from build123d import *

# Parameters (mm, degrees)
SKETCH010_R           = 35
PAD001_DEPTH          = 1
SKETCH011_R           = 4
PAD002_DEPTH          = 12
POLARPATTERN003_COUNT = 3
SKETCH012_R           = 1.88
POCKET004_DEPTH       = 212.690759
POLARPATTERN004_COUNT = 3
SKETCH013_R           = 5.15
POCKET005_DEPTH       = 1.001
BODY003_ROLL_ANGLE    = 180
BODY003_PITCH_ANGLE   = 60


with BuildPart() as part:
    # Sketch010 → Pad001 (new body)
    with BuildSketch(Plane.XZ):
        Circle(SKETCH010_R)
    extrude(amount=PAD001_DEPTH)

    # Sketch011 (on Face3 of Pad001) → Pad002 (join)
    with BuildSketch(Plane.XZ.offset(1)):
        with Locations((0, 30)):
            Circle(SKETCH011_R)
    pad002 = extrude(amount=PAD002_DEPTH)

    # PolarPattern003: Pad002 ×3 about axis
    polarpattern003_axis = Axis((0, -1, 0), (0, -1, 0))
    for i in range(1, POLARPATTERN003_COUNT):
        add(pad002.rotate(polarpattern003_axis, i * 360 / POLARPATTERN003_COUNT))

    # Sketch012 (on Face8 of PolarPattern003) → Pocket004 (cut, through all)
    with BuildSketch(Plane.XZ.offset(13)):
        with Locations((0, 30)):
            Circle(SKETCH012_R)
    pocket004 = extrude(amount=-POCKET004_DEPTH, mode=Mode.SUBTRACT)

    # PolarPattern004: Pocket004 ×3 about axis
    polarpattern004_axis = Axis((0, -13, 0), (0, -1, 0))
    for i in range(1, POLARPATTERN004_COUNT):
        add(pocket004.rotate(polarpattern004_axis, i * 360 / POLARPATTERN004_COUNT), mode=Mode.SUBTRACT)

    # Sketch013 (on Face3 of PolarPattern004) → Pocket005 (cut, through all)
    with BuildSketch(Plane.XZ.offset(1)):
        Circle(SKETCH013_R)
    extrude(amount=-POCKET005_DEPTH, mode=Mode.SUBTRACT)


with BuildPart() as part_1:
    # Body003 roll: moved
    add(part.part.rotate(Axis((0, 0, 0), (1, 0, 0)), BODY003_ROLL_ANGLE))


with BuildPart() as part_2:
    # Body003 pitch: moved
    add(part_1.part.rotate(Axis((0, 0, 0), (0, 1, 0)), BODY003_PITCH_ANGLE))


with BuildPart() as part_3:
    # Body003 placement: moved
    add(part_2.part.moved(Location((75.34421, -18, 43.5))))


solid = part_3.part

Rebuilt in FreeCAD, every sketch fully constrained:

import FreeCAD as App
import Part
import Sketcher

V = App.Vector

doc = App.newDocument("Part")
body = doc.addObject("PartDesign::Body", "Body")

# Sketch on XZ plane
sketch1 = body.newObject("Sketcher::SketchObject", "Sketch")
sketch1.AttachmentSupport = (doc.getObject("XZ_Plane"), [""])
sketch1.MapMode = "FlatFace"
sketch1.addGeometry(Part.Circle(V(0, 0, 0), V(0, 0, 1), 35), False)
sketch1.addConstraint(Sketcher.Constraint("Coincident", 0, 3, -1, 1))
sketch1.addConstraint(Sketcher.Constraint("Diameter", 0, 70.0))
pad1 = body.newObject("PartDesign::Pad", "Pad")
pad1.Profile = sketch1
pad1.Length = 1

# Sketch on XZ plane
sketch2 = body.newObject("Sketcher::SketchObject", "Sketch001")
sketch2.AttachmentSupport = (doc.getObject("XZ_Plane"), [""])
sketch2.MapMode = "FlatFace"
sketch2.AttachmentOffset = App.Placement(V(0, 0, 1), App.Rotation())
sketch2.addGeometry(Part.Circle(V(0, 30, 0), V(0, 0, 1), 4), False)
sketch2.addConstraint(Sketcher.Constraint("PointOnObject", 0, 3, -2))
sketch2.addConstraint(Sketcher.Constraint("Diameter", 0, 8.0))
sketch2.addConstraint(Sketcher.Constraint("DistanceY", -1, 1, 0, 3, 30.0))
pad2 = body.newObject("PartDesign::Pad", "Pad001")
pad2.Profile = sketch2
pad2.Length = 12
doc.recompute()

polarpattern = body.newObject("PartDesign::PolarPattern", "PolarPattern")
polarpattern.Originals = [pad2]
polarpattern.Axis = (doc.getObject("Y_Axis"), [""])
polarpattern.Angle = 360
polarpattern.Occurrences = 3
body.Tip = polarpattern

# Sketch on XZ plane
sketch3 = body.newObject("Sketcher::SketchObject", "Sketch002")
sketch3.AttachmentSupport = (doc.getObject("XZ_Plane"), [""])
sketch3.MapMode = "FlatFace"
sketch3.AttachmentOffset = App.Placement(V(0, 0, 13), App.Rotation())
sketch3.addGeometry(Part.Circle(V(0, 30, 0), V(0, 0, 1), 1.88), False)
sketch3.addConstraint(Sketcher.Constraint("PointOnObject", 0, 3, -2))
sketch3.addConstraint(Sketcher.Constraint("Diameter", 0, 3.76))
sketch3.addConstraint(Sketcher.Constraint("DistanceY", -1, 1, 0, 3, 30.0))
pocket1 = body.newObject("PartDesign::Pocket", "Pocket")
pocket1.Profile = sketch3
pocket1.Type = "ThroughAll"
doc.recompute()

polarpattern2 = body.newObject("PartDesign::PolarPattern", "PolarPattern001")
polarpattern2.Originals = [pocket1]
polarpattern2.Axis = (doc.getObject("Y_Axis"), [""])
polarpattern2.Angle = 360
polarpattern2.Occurrences = 3
body.Tip = polarpattern2

# Sketch on XZ plane
sketch4 = body.newObject("Sketcher::SketchObject", "Sketch003")
sketch4.AttachmentSupport = (doc.getObject("XZ_Plane"), [""])
sketch4.MapMode = "FlatFace"
sketch4.AttachmentOffset = App.Placement(V(0, 0, 1), App.Rotation())
sketch4.addGeometry(Part.Circle(V(0, 0, 0), V(0, 0, 1), 5.15), False)
sketch4.addConstraint(Sketcher.Constraint("Coincident", 0, 3, -1, 1))
sketch4.addConstraint(Sketcher.Constraint("Diameter", 0, 10.3))
pocket2 = body.newObject("PartDesign::Pocket", "Pocket001")
pocket2.Profile = sketch4
pocket2.Type = "ThroughAll"
body2 = doc.addObject("PartDesign::Body", "Body001")
doc.recompute()

body.Placement = App.Placement(V(0, 0, 0), App.Rotation(V(1, 0, 0), 180))
boolean = body2.newObject("PartDesign::Boolean", "Boolean")
boolean.Type = "Fuse"
boolean.addObjects([body])
body3 = doc.addObject("PartDesign::Body", "Body002")
doc.recompute()

body2.Placement = App.Placement(V(0, 0, 0), App.Rotation(V(0, 1, 0), 60))
boolean2 = body3.newObject("PartDesign::Boolean", "Boolean001")
boolean2.Type = "Fuse"
boolean2.addObjects([body2])
body4 = doc.addObject("PartDesign::Body", "Body003")
doc.recompute()

body3.Placement = App.Placement(V(75.34421, -18, 43.5), App.Rotation(V(0, 0, 1), 0))
boolean3 = body4.newObject("PartDesign::Boolean", "Boolean002")
boolean3.Type = "Fuse"
boolean3.addObjects([body3])

doc.recompute()
